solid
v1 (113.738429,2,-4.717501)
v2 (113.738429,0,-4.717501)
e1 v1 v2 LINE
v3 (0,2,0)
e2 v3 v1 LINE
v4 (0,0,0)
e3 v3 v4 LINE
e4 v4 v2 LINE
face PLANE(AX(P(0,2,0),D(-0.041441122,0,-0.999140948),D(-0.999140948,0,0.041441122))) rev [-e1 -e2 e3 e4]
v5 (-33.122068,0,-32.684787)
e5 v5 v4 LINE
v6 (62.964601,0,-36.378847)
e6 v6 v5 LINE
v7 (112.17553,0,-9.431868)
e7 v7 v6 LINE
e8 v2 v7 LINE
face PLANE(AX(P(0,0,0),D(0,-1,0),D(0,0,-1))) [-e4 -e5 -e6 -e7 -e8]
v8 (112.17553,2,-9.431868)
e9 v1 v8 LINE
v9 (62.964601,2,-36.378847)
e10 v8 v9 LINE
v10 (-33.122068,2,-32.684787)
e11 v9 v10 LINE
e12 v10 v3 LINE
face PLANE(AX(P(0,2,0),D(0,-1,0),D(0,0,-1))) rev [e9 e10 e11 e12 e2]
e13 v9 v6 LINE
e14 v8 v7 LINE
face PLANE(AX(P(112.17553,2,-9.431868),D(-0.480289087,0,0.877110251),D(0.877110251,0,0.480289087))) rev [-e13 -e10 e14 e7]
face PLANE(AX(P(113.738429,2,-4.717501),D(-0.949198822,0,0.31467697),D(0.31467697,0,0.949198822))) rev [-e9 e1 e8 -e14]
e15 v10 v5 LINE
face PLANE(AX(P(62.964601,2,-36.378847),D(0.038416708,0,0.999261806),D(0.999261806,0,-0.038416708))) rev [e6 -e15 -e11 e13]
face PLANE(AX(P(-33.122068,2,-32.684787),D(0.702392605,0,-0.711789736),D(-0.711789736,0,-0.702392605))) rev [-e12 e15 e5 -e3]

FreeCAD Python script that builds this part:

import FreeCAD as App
import Part
import Sketcher

doc = App.newDocument("Part")
params = doc.addObject("Spreadsheet::Sheet", "Params")
for row, (alias, value) in enumerate([
    ("pad1_length", "2 mm"),
], start=1):
    params.set(f"A{row}", alias)
    params.set(f"B{row}", "=" + value)
    params.setAlias(f"B{row}", alias)

body = doc.addObject("PartDesign::Body", "Body")

# Sketch on XZ plane
sketch1 = doc.addObject("Sketcher::SketchObject", "Sketch")
body.addObject(sketch1)
sketch1.AttachmentSupport = (doc.XZ_Plane, [""])
sketch1.MapMode = "FlatFace"
sketch1.addGeometry([
    Part.LineSegment(App.Vector(112.2, -9.4, 0), App.Vector(63, -36.4, 0)),  # 0
    Part.LineSegment(App.Vector(63, -36.4, 0), App.Vector(-33.1, -32.7, 0)),  # 1
    Part.LineSegment(App.Vector(-33.1, -32.7, 0), App.Vector(0, 0, 0)),  # 2
    Part.LineSegment(App.Vector(0, 0, 0), App.Vector(113.7, -4.7, 0)),  # 3
    Part.LineSegment(App.Vector(113.7, -4.7, 0), App.Vector(112.2, -9.4, 0)),  # 4
], False)
sketch1.addConstraint([
    Sketcher.Constraint("Coincident", 0, 2, 1, 1),
    Sketcher.Constraint("Coincident", 1, 2, 2, 1),
    Sketcher.Constraint("Coincident", 2, 2, 3, 1),
    Sketcher.Constraint("Coincident", 3, 2, 4, 1),
    Sketcher.Constraint("Coincident", 4, 2, 0, 1),
    Sketcher.Constraint("Coincident", 2, 2, -1, 1),
    Sketcher.Constraint("Distance", 2, 46.533501),
    Sketcher.Constraint("DistanceX", -1, 1, 0, 2, 62.964601),
    Sketcher.Constraint("DistanceY", 3, 2, -1, 1, 4.717501),
    Sketcher.Constraint("DistanceX", 4, 2, 3, 2, 1.5629),
    Sketcher.Constraint("Distance", 0, 56.105751),
    Sketcher.Constraint("Distance", 1, 96.157652),
    Sketcher.Constraint("Distance", 3, 113.836221),
    Sketcher.Constraint("Distance", 4, 4.96668),
])
pad1 = doc.addObject("PartDesign::Pad", "Pad")
body.addObject(pad1)
pad1.Profile = sketch1
pad1.setExpression("Length", "Params.pad1_length")
pad1.Reversed = True

doc.recompute()
